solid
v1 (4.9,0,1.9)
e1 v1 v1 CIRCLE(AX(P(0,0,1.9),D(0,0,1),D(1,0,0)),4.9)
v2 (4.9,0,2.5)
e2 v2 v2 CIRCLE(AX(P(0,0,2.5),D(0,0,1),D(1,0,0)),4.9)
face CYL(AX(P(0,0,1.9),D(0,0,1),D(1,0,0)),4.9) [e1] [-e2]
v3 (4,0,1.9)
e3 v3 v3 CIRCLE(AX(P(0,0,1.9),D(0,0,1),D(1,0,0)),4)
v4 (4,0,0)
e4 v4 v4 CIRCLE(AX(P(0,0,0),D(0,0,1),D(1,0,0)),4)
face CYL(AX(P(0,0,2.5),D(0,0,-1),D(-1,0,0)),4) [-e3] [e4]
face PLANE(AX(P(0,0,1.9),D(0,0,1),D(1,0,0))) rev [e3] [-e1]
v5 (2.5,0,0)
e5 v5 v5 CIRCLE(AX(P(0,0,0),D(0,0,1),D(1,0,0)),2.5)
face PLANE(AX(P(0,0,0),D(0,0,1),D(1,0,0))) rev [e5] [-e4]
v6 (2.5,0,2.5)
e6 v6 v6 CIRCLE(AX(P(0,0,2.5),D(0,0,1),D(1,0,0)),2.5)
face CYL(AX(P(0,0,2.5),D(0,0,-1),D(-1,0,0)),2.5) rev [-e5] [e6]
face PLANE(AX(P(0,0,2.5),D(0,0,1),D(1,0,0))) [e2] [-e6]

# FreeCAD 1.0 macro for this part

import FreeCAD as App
import Part
import Sketcher

V = App.Vector

doc = App.newDocument("Part")
body = doc.addObject("PartDesign::Body", "Body")

# Sketch on XY plane
sketch1 = body.newObject("Sketcher::SketchObject", "Sketch")
sketch1.AttachmentSupport = (doc.getObject("XY_Plane"), [""])
sketch1.MapMode = "FlatFace"
sketch1.addGeometry([
    Part.Circle(V(0, 0, 0), V(0, 0, 1), 4),
    Part.Circle(V(0, 0, 0), V(0, 0, 1), 2.5),
], False)
sketch1.addConstraint([
    Sketcher.Constraint("Coincident", 0, 3, -1, 1),
    Sketcher.Constraint("Coincident", 1, 3, -1, 1),
    Sketcher.Constraint("Diameter", 0, 8.0),
    Sketcher.Constraint("Diameter", 1, 5.0),
])
pad1 = body.newObject("PartDesign::Pad", "Pad")
pad1.Profile = sketch1
pad1.Length = 2.5

# Sketch on XY plane
sketch2 = body.newObject("Sketcher::SketchObject", "Sketch001")
sketch2.AttachmentSupport = (doc.getObject("XY_Plane"), [""])
sketch2.MapMode = "FlatFace"
sketch2.AttachmentOffset = App.Placement(V(0, 0, 1.9), App.Rotation())
sketch2.addGeometry([
    Part.Circle(V(0, 0, 0), V(0, 0, 1), 4.9),
    Part.Circle(V(0, 0, 0), V(0, 0, 1), 4),
], False)
sketch2.addConstraint([
    Sketcher.Constraint("Coincident", 0, 3, -1, 1),
    Sketcher.Constraint("Coincident", 1, 3, -1, 1),
    Sketcher.Constraint("Diameter", 1, 8.0),
    Sketcher.Constraint("Diameter", 0, 9.8),
])
pad2 = body.newObject("PartDesign::Pad", "Pad001")
pad2.Profile = sketch2
pad2.Length = 0.6

doc.recompute()
